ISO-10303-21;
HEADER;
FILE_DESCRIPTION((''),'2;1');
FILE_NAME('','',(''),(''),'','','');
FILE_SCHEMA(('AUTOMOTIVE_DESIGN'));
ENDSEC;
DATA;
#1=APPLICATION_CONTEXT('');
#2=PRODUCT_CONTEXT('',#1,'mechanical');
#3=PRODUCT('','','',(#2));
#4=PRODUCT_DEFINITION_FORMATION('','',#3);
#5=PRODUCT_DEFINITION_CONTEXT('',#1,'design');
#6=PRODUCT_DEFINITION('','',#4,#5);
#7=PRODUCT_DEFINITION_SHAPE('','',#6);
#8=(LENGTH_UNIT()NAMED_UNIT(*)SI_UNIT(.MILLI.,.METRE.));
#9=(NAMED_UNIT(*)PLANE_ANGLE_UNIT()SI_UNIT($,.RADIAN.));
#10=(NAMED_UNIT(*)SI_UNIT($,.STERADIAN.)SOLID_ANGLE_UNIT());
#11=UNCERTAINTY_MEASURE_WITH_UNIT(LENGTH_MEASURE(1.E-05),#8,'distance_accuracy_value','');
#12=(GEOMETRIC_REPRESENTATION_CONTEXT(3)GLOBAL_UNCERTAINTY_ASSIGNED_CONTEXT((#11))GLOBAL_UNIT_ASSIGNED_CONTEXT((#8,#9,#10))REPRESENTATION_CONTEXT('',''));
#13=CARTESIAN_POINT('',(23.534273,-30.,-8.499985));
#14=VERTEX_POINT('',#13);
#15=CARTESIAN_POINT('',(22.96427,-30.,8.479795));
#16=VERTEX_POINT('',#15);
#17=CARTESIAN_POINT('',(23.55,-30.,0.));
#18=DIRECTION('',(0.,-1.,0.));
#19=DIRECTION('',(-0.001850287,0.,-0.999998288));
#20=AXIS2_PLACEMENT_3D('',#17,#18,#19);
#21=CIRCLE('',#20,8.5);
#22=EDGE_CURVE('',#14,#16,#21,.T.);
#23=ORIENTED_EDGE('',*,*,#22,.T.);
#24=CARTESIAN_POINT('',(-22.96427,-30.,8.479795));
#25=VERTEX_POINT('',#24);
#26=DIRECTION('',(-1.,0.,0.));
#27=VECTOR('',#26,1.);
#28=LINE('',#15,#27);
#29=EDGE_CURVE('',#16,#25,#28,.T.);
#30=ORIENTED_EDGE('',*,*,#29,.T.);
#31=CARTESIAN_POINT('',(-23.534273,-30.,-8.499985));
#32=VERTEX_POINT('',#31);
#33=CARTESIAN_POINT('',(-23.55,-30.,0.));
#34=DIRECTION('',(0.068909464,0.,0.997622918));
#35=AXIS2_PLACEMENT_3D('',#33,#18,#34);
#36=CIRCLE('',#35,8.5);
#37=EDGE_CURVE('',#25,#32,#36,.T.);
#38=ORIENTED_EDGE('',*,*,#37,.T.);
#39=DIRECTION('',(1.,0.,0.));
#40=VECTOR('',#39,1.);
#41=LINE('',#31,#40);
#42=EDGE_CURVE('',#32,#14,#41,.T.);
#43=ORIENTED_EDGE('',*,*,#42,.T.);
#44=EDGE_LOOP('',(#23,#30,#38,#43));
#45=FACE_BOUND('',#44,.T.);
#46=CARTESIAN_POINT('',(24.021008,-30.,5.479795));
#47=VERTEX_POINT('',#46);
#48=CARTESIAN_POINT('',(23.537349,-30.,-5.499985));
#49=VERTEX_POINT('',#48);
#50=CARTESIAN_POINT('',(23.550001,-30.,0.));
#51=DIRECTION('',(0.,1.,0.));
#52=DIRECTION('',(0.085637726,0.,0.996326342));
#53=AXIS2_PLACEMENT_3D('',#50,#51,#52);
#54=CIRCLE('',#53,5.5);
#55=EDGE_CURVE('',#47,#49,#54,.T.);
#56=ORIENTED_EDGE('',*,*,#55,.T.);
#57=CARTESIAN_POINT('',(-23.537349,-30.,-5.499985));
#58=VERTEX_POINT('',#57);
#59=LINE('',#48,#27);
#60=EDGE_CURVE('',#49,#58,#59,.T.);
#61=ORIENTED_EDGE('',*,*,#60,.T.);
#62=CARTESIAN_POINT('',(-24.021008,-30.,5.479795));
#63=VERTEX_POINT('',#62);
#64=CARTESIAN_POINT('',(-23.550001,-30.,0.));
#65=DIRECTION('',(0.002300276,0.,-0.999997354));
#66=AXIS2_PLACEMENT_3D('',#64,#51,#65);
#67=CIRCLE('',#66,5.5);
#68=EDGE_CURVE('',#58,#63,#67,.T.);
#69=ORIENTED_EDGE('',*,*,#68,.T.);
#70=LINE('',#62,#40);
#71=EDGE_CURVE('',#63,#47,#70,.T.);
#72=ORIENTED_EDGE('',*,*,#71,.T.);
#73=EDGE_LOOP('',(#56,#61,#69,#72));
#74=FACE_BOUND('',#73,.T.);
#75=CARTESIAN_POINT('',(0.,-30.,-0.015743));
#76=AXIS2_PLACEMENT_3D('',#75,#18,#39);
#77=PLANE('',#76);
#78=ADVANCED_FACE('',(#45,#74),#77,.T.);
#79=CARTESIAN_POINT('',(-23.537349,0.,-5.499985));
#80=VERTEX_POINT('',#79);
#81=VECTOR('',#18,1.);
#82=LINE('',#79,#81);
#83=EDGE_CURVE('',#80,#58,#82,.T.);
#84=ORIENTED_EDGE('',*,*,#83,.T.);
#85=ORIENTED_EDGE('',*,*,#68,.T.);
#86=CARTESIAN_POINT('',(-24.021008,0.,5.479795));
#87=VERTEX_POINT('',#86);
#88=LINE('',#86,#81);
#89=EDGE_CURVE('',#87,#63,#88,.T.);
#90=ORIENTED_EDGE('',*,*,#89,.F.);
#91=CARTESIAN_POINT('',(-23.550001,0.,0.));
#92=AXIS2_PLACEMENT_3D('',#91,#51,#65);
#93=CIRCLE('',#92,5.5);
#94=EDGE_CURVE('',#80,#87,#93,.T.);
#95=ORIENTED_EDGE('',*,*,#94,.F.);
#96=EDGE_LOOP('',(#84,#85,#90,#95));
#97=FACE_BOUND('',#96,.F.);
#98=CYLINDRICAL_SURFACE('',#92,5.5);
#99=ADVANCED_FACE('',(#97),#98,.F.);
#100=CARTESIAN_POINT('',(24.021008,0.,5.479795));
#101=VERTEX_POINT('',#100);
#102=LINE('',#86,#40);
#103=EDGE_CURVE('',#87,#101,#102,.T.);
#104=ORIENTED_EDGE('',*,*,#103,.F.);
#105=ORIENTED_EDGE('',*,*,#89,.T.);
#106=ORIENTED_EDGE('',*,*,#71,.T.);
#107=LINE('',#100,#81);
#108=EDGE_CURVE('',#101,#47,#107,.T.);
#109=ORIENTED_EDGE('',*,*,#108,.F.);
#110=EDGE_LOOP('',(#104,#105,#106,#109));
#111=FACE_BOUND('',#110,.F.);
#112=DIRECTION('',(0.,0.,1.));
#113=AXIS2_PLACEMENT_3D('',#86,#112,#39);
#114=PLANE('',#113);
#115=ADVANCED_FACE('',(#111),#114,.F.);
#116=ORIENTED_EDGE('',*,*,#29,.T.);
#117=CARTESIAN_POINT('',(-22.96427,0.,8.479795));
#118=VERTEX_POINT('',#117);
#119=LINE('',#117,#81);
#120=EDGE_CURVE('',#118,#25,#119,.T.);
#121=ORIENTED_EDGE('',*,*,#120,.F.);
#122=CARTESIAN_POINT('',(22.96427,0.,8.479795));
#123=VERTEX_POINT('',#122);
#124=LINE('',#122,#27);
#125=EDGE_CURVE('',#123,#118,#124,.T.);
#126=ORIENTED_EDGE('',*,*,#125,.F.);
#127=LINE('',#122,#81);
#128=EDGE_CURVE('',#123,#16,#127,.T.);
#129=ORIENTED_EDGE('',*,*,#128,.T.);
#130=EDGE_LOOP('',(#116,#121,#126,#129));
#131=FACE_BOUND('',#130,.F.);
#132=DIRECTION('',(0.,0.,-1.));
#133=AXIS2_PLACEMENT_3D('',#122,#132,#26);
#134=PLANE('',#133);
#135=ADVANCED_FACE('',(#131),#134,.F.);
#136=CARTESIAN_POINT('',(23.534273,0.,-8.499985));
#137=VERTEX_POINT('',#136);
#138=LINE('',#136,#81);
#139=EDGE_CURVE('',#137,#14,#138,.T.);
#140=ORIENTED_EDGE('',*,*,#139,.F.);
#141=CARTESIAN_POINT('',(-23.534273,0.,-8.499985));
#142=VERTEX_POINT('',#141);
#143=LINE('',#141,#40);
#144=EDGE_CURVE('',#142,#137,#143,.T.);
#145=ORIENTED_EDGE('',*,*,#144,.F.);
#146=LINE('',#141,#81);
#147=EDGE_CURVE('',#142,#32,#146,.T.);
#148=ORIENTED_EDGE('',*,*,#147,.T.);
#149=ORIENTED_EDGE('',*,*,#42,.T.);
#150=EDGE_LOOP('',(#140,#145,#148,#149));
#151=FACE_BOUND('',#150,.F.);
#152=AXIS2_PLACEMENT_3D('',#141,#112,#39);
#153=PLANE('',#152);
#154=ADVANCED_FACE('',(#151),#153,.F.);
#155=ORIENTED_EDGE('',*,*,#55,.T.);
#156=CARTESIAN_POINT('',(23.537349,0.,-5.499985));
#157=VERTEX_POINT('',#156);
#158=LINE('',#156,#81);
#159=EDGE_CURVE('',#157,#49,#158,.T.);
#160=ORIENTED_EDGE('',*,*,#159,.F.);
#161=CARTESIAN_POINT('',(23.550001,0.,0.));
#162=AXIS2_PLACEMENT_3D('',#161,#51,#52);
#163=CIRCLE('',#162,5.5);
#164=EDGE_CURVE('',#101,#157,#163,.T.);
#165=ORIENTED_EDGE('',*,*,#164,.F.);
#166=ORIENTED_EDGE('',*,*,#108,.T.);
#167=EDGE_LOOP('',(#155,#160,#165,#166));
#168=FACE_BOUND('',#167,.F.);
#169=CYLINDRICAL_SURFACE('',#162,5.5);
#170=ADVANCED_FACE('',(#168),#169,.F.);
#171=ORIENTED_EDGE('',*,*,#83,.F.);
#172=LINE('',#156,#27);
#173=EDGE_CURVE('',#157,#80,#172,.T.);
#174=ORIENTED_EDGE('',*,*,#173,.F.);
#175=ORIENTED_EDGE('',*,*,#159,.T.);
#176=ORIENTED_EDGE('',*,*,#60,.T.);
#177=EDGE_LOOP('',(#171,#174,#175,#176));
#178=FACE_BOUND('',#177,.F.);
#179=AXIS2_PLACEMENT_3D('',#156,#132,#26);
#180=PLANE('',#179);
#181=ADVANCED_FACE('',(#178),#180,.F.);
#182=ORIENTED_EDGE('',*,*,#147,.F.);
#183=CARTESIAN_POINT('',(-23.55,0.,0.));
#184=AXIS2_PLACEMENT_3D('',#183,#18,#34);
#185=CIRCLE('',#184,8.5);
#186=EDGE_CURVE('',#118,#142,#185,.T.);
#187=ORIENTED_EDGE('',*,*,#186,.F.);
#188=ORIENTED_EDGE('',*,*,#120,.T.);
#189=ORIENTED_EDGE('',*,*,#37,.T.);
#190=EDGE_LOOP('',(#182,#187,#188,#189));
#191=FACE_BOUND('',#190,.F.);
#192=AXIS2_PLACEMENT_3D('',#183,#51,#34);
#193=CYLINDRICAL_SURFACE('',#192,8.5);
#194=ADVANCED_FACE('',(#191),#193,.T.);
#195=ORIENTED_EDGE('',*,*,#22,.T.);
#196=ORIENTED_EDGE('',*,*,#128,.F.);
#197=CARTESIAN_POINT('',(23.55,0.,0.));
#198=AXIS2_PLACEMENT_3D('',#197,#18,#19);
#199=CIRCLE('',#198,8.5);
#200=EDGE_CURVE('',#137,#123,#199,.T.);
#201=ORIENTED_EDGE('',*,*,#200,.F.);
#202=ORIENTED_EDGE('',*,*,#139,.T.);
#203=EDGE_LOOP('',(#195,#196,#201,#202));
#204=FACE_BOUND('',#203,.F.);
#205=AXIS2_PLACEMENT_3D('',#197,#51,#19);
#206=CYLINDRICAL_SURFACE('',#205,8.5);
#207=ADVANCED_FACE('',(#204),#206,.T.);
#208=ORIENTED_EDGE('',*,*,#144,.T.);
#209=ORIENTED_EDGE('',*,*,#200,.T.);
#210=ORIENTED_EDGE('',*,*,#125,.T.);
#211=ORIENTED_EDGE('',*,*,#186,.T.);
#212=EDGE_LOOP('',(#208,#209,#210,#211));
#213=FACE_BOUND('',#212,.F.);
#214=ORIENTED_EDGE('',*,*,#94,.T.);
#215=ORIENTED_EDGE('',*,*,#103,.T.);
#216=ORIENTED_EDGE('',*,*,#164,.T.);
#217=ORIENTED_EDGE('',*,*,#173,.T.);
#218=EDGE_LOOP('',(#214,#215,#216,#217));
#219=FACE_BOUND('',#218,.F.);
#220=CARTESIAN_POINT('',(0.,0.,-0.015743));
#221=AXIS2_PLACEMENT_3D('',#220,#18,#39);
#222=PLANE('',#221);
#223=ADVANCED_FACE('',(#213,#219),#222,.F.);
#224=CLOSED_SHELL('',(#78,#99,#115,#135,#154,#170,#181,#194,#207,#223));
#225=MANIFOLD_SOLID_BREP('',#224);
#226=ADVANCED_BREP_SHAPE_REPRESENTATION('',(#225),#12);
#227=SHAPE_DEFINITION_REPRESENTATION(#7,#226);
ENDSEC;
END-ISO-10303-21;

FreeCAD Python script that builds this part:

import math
import FreeCAD as App
import Part
import Sketcher

V = App.Vector
Q = App.Units.Quantity

doc = App.newDocument("Part")
params = doc.addObject("Spreadsheet::Sheet", "Params")
for row, (alias, value) in enumerate([
    ("sketch1_radius", "8.5 mm"),
    ("sketch1_radius2", "5.5 mm"),
    ("pad1_length", "30 mm"),
], start=1):
    params.set(f"A{row}", alias)
    params.set(f"B{row}", "=" + value)
    params.setAlias(f"B{row}", alias)

body = doc.addObject("PartDesign::Body", "Body")

# Sketch on XZ plane
sketch1 = body.newObject("Sketcher::SketchObject", "Sketch")
sketch1.AttachmentSupport = (doc.getObject("XZ_Plane"), [""])
sketch1.MapMode = "FlatFace"
sketch1.addGeometry([
    Part.ArcOfCircle(Part.Circle(V(-23.55, 0, 0), V(0, 0, 1), 8.5), math.radians(86.048647), math.radians(270.106014)),  # 0
    Part.LineSegment(V(-23.534273, -8.499985, 0), V(23.534273, -8.499985, 0)),  # 1
    Part.ArcOfCircle(Part.Circle(V(23.55, 0, 0), V(0, 0, 1), 8.5), math.radians(-90.106014), math.radians(93.951353)),  # 2
    Part.LineSegment(V(22.96427, 8.479795, 0), V(-22.96427, 8.479795, 0)),  # 3
    Part.LineSegment(V(23.537349, -5.499985, 0), V(-23.537349, -5.499985, 0)),  # 4
    Part.ArcOfCircle(Part.Circle(V(-23.550001, 0, 0), V(0, 0, 1), 5.5), math.radians(94.912698), math.radians(270.131796)),  # 5
    Part.LineSegment(V(-24.021008, 5.479795, 0), V(24.021008, 5.479795, 0)),  # 6
    Part.ArcOfCircle(Part.Circle(V(23.550001, 0, 0), V(0, 0, 1), 5.5), math.radians(-90.131796), math.radians(85.087302)),  # 7
], False)
sketch1.addConstraint([
    Sketcher.Constraint("Coincident", 0, 2, 1, 1),
    Sketcher.Constraint("Coincident", 1, 2, 2, 1),
    Sketcher.Constraint("Coincident", 2, 2, 3, 1),
    Sketcher.Constraint("Coincident", 3, 2, 0, 1),
    Sketcher.Constraint("Coincident", 4, 2, 5, 2),
    Sketcher.Constraint("Coincident", 5, 1, 6, 1),
    Sketcher.Constraint("Coincident", 6, 2, 7, 2),
    Sketcher.Constraint("Coincident", 7, 1, 4, 1),
    Sketcher.Constraint("Horizontal", 1),
    Sketcher.Constraint("Horizontal", 3),
    Sketcher.Constraint("Horizontal", 4),
    Sketcher.Constraint("Horizontal", 6),
    Sketcher.Constraint("Coincident", 5, 3, 0, 3),
    Sketcher.Constraint("Coincident", 7, 3, 2, 3),
    Sketcher.Constraint("Equal", 0, 2),
    Sketcher.Constraint("Equal", 5, 7),
    Sketcher.Constraint("Symmetric", 0, 3, 2, 3, -1, 1),
    Sketcher.Constraint("Radius", 0, Q("8.5 mm")),
    Sketcher.Constraint("Radius", 5, Q("5.5 mm")),
    Sketcher.Constraint("DistanceY", 5, 1, 3, 2, Q("3 mm")),
    Sketcher.Constraint("DistanceX", 0, 3, 2, 3, Q("47.100001 mm")),
    Sketcher.Constraint("DistanceX", 3, 2, 3, 1, Q("45.92854 mm")),
    Sketcher.Constraint("DistanceX", 1, 1, 1, 2, Q("47.068546 mm")),
    Sketcher.Constraint("DistanceX", 4, 2, 4, 1, Q("47.074698 mm")),
    Sketcher.Constraint("DistanceX", 3, 2, -1, 1, Q("22.96427 mm")),
])
sketch1.setExpression("Constraints[17]", "Params.sketch1_radius")
sketch1.setExpression("Constraints[18]", "Params.sketch1_radius2")
pad1 = body.newObject("PartDesign::Pad", "Pad")
pad1.Profile = sketch1
pad1.setExpression("Length", "Params.pad1_length")

doc.recompute()
